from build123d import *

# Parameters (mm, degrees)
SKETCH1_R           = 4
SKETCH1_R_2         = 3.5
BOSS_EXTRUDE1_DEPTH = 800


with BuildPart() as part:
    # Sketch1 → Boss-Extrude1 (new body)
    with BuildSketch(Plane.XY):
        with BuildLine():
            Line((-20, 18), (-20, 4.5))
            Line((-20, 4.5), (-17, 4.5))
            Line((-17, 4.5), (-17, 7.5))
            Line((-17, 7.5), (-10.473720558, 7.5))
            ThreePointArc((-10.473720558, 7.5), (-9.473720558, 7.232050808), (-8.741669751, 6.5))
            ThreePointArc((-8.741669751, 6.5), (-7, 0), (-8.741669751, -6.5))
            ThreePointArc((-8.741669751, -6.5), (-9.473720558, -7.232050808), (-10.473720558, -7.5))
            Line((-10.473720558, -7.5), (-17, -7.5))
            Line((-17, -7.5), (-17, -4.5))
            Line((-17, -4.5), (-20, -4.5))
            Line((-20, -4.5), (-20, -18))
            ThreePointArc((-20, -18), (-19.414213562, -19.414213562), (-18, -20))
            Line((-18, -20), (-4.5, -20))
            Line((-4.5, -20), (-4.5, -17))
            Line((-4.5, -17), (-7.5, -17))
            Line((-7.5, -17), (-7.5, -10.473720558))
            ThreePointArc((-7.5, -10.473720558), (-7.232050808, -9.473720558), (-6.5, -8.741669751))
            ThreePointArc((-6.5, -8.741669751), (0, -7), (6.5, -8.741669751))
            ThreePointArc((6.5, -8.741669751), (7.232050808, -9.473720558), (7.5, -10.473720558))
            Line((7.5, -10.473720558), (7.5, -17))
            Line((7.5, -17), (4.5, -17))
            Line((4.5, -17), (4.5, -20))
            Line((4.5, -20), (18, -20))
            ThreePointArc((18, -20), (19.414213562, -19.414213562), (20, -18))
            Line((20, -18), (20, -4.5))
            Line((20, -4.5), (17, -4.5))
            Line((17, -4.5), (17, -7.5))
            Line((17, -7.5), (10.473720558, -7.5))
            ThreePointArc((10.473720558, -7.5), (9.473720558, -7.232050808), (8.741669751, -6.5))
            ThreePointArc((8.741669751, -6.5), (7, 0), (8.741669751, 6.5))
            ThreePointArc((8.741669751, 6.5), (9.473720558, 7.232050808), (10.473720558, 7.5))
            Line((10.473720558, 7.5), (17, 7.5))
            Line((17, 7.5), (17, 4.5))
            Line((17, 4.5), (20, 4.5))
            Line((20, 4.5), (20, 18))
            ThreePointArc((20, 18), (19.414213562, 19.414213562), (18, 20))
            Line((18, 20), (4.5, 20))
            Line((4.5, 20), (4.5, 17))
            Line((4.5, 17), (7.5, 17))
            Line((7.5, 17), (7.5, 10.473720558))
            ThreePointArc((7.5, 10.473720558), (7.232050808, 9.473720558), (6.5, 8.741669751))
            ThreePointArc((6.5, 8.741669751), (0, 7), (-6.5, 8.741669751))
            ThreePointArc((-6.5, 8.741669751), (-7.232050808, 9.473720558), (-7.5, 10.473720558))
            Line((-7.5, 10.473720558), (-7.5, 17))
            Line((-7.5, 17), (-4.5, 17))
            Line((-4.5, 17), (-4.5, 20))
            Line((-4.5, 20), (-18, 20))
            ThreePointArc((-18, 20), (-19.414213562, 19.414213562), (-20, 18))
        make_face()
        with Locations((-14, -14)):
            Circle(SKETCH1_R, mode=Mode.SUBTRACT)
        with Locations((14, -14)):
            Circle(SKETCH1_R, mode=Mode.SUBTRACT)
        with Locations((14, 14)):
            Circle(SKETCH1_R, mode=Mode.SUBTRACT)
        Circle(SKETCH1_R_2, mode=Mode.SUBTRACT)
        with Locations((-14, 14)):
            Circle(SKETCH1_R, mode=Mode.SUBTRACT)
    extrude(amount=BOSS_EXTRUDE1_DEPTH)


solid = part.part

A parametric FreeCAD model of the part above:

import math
import FreeCAD as App
import Part
import Sketcher
from FreeCAD import Vector

doc = App.newDocument("Part")
params = doc.addObject("Spreadsheet::Sheet", "Params")
for row, (alias, value) in enumerate([
    ("sketch1_diameter", "8 mm"),
    ("sketch1_diameter2", "7 mm"),
    ("sketch1_radius", "2 mm"),
    ("sketch1_radius2", "13 mm"),
    ("sketch1_width", "3 mm"),
    ("pad1_length", "800 mm"),
], start=1):
    params.set(f"A{row}", alias)
    params.set(f"B{row}", "=" + value)
    params.setAlias(f"B{row}", alias)

body = doc.addObject("PartDesign::Body", "Body")

sketch1 = doc.addObject("Sketcher::SketchObject", "Sketch")
body.addObject(sketch1)
sketch1.AttachmentSupport = (doc.XY_Plane, [""])
sketch1.MapMode = "FlatFace"
sketch1.addGeometry(Part.LineSegment(Vector(-20, 18, 0), Vector(-20, 4.5, 0)), False)
sketch1.addGeometry(Part.LineSegment(Vector(-20, 4.5, 0), Vector(-17, 4.5, 0)), False)
sketch1.addGeometry(Part.LineSegment(Vector(-17, 4.5, 0), Vector(-17, 7.5, 0)), False)
sketch1.addGeometry(Part.LineSegment(Vector(-17, 7.5, 0), Vector(-10.5, 7.5, 0)), False)
sketch1.addGeometry(Part.ArcOfCircle(Part.Circle(Vector(-10.5, 5.5, 0), Vector(0, 0, 1), 2), math.radians(30), math.radians(90)), False)
sketch1.addGeometry(Part.ArcOfCircle(Part.Circle(Vector(-20, 0, 0), Vector(0, 0, 1), 13), math.radians(-30), math.radians(30)), False)
sketch1.addGeometry(Part.ArcOfCircle(Part.Circle(Vector(-10.5, -5.5, 0), Vector(0, 0, 1), 2), math.radians(-90), math.radians(-30)), False)
sketch1.addGeometry(Part.LineSegment(Vector(-10.5, -7.5, 0), Vector(-17, -7.5, 0)), False)
sketch1.addGeometry(Part.LineSegment(Vector(-17, -7.5, 0), Vector(-17, -4.5, 0)), False)
sketch1.addGeometry(Part.LineSegment(Vector(-17, -4.5, 0), Vector(-20, -4.5, 0)), False)
sketch1.addGeometry(Part.LineSegment(Vector(-20, -4.5, 0), Vector(-20, -18, 0)), False)
sketch1.addGeometry(Part.ArcOfCircle(Part.Circle(Vector(-18, -18, 0), Vector(0, 0, 1), 2), math.radians(-180), math.radians(-90)), False)
sketch1.addGeometry(Part.LineSegment(Vector(-18, -20, 0), Vector(-4.5, -20, 0)), False)
sketch1.addGeometry(Part.LineSegment(Vector(-4.5, -20, 0), Vector(-4.5, -17, 0)), False)
sketch1.addGeometry(Part.LineSegment(Vector(-4.5, -17, 0), Vector(-7.5, -17, 0)), False)
sketch1.addGeometry(Part.LineSegment(Vector(-7.5, -17, 0), Vector(-7.5, -10.5, 0)), False)
sketch1.addGeometry(Part.ArcOfCircle(Part.Circle(Vector(-5.5, -10.5, 0), Vector(0, 0, 1), 2), math.radians(120), math.radians(180)), False)
sketch1.addGeometry(Part.ArcOfCircle(Part.Circle(Vector(0, -20, 0), Vector(0, 0, 1), 13), math.radians(60), math.radians(120)), False)
sketch1.addGeometry(Part.ArcOfCircle(Part.Circle(Vector(5.5, -10.5, 0), Vector(0, 0, 1), 2), math.radians(0), math.radians(60)), False)
sketch1.addGeometry(Part.LineSegment(Vector(7.5, -10.5, 0), Vector(7.5, -17, 0)), False)
sketch1.addGeometry(Part.LineSegment(Vector(7.5, -17, 0), Vector(4.5, -17, 0)), False)
sketch1.addGeometry(Part.LineSegment(Vector(4.5, -17, 0), Vector(4.5, -20, 0)), False)
sketch1.addGeometry(Part.LineSegment(Vector(4.5, -20, 0), Vector(18, -20, 0)), False)
sketch1.addGeometry(Part.ArcOfCircle(Part.Circle(Vector(18, -18, 0), Vector(0, 0, 1), 2), math.radians(-90), math.radians(0)), False)
sketch1.addGeometry(Part.LineSegment(Vector(20, -18, 0), Vector(20, -4.5, 0)), False)
sketch1.addGeometry(Part.LineSegment(Vector(20, -4.5, 0), Vector(17, -4.5, 0)), False)
sketch1.addGeometry(Part.LineSegment(Vector(17, -4.5, 0), Vector(17, -7.5, 0)), False)
sketch1.addGeometry(Part.LineSegment(Vector(17, -7.5, 0), Vector(10.5, -7.5, 0)), False)
sketch1.addGeometry(Part.ArcOfCircle(Part.Circle(Vector(10.5, -5.5, 0), Vector(0, 0, 1), 2), math.radians(-150), math.radians(-90)), False)
sketch1.addGeometry(Part.ArcOfCircle(Part.Circle(Vector(20, 0, 0), Vector(0, 0, 1), 13), math.radians(150), math.radians(210)), False)
sketch1.addGeometry(Part.ArcOfCircle(Part.Circle(Vector(10.5, 5.5, 0), Vector(0, 0, 1), 2), math.radians(90), math.radians(150)), False)
sketch1.addGeometry(Part.LineSegment(Vector(10.5, 7.5, 0), Vector(17, 7.5, 0)), False)
sketch1.addGeometry(Part.LineSegment(Vector(17, 7.5, 0), Vector(17, 4.5, 0)), False)
sketch1.addGeometry(Part.LineSegment(Vector(17, 4.5, 0), Vector(20, 4.5, 0)), False)
sketch1.addGeometry(Part.LineSegment(Vector(20, 4.5, 0), Vector(20, 18, 0)), False)
sketch1.addGeometry(Part.ArcOfCircle(Part.Circle(Vector(18, 18, 0), Vector(0, 0, 1), 2), math.radians(0), math.radians(90)), False)
sketch1.addGeometry(Part.LineSegment(Vector(18, 20, 0), Vector(4.5, 20, 0)), False)
sketch1.addGeometry(Part.LineSegment(Vector(4.5, 20, 0), Vector(4.5, 17, 0)), False)
sketch1.addGeometry(Part.LineSegment(Vector(4.5, 17, 0), Vector(7.5, 17, 0)), False)
sketch1.addGeometry(Part.LineSegment(Vector(7.5, 17, 0), Vector(7.5, 10.5, 0)), False)
sketch1.addGeometry(Part.ArcOfCircle(Part.Circle(Vector(5.5, 10.5, 0), Vector(0, 0, 1), 2), math.radians(-60), math.radians(0)), False)
sketch1.addGeometry(Part.ArcOfCircle(Part.Circle(Vector(0, 20, 0), Vector(0, 0, 1), 13), math.radians(-120), math.radians(-60)), False)
sketch1.addGeometry(Part.ArcOfCircle(Part.Circle(Vector(-5.5, 10.5, 0), Vector(0, 0, 1), 2), math.radians(180), math.radians(240)), False)
sketch1.addGeometry(Part.LineSegment(Vector(-7.5, 10.5, 0), Vector(-7.5, 17, 0)), False)
sketch1.addGeometry(Part.LineSegment(Vector(-7.5, 17, 0), Vector(-4.5, 17, 0)), False)
sketch1.addGeometry(Part.LineSegment(Vector(-4.5, 17, 0), Vector(-4.5, 20, 0)), False)
sketch1.addGeometry(Part.LineSegment(Vector(-4.5, 20, 0), Vector(-18, 20, 0)), False)
sketch1.addGeometry(Part.ArcOfCircle(Part.Circle(Vector(-18, 18, 0), Vector(0, 0, 1), 2), math.radians(90), math.radians(180)), False)
sketch1.addGeometry(Part.Circle(Vector(-14, -14, 0), Vector(0, 0, 1), 4), False)
sketch1.addGeometry(Part.Circle(Vector(14, -14, 0), Vector(0, 0, 1), 4), False)
sketch1.addGeometry(Part.Circle(Vector(-14, 14, 0), Vector(0, 0, 1), 4), False)
sketch1.addGeometry(Part.Circle(Vector(0, 0, 0), Vector(0, 0, 1), 3.5), False)
sketch1.addGeometry(Part.Circle(Vector(14, 14, 0), Vector(0, 0, 1), 4), False)
sketch1.addConstraint(Sketcher.Constraint("Coincident", 0, 2, 1, 1))
sketch1.addConstraint(Sketcher.Constraint("Coincident", 1, 2, 2, 1))
sketch1.addConstraint(Sketcher.Constraint("Coincident", 2, 2, 3, 1))
sketch1.addConstraint(Sketcher.Constraint("Tangent", 3, 2, 4, 2))
sketch1.addConstraint(Sketcher.Constraint("Tangent", 4, 1, 5, 2))
sketch1.addConstraint(Sketcher.Constraint("Tangent", 5, 1, 6, 2))
sketch1.addConstraint(Sketcher.Constraint("Tangent", 6, 1, 7, 1))
sketch1.addConstraint(Sketcher.Constraint("Coincident", 7, 2, 8, 1))
sketch1.addConstraint(Sketcher.Constraint("Coincident", 8, 2, 9, 1))
sketch1.addConstraint(Sketcher.Constraint("Coincident", 9, 2, 10, 1))
sketch1.addConstraint(Sketcher.Constraint("Tangent", 10, 2, 11, 1))
sketch1.addConstraint(Sketcher.Constraint("Tangent", 11, 2, 12, 1))
sketch1.addConstraint(Sketcher.Constraint("Coincident", 12, 2, 13, 1))
sketch1.addConstraint(Sketcher.Constraint("Coincident", 13, 2, 14, 1))
sketch1.addConstraint(Sketcher.Constraint("Coincident", 14, 2, 15, 1))
sketch1.addConstraint(Sketcher.Constraint("Tangent", 15, 2, 16, 2))
sketch1.addConstraint(Sketcher.Constraint("Tangent", 16, 1, 17, 2))
sketch1.addConstraint(Sketcher.Constraint("Tangent", 17, 1, 18, 2))
sketch1.addConstraint(Sketcher.Constraint("Tangent", 18, 1, 19, 1))
sketch1.addConstraint(Sketcher.Constraint("Coincident", 19, 2, 20, 1))
sketch1.addConstraint(Sketcher.Constraint("Coincident", 20, 2, 21, 1))
sketch1.addConstraint(Sketcher.Constraint("Coincident", 21, 2, 22, 1))
sketch1.addConstraint(Sketcher.Constraint("Tangent", 22, 2, 23, 1))
sketch1.addConstraint(Sketcher.Constraint("Tangent", 23, 2, 24, 1))
sketch1.addConstraint(Sketcher.Constraint("Coincident", 24, 2, 25, 1))
sketch1.addConstraint(Sketcher.Constraint("Coincident", 25, 2, 26, 1))
sketch1.addConstraint(Sketcher.Constraint("Coincident", 26, 2, 27, 1))
sketch1.addConstraint(Sketcher.Constraint("Tangent", 27, 2, 28, 2))
sketch1.addConstraint(Sketcher.Constraint("Tangent", 28, 1, 29, 2))
sketch1.addConstraint(Sketcher.Constraint("Tangent", 29, 1, 30, 2))
sketch1.addConstraint(Sketcher.Constraint("Tangent", 30, 1, 31, 1))
sketch1.addConstraint(Sketcher.Constraint("Coincident", 31, 2, 32, 1))
sketch1.addConstraint(Sketcher.Constraint("Coincident", 32, 2, 33, 1))
sketch1.addConstraint(Sketcher.Constraint("Coincident", 33, 2, 34, 1))
sketch1.addConstraint(Sketcher.Constraint("Tangent", 34, 2, 35, 1))
sketch1.addConstraint(Sketcher.Constraint("Tangent", 35, 2, 36, 1))
sketch1.addConstraint(Sketcher.Constraint("Coincident", 36, 2, 37, 1))
sketch1.addConstraint(Sketcher.Constraint("Coincident", 37, 2, 38, 1))
sketch1.addConstraint(Sketcher.Constraint("Coincident", 38, 2, 39, 1))
sketch1.addConstraint(Sketcher.Constraint("Tangent", 39, 2, 40, 2))
sketch1.addConstraint(Sketcher.Constraint("Tangent", 40, 1, 41, 2))
sketch1.addConstraint(Sketcher.Constraint("Tangent", 41, 1, 42, 2))
sketch1.addConstraint(Sketcher.Constraint("Tangent", 42, 1, 43, 1))
sketch1.addConstraint(Sketcher.Constraint("Coincident", 43, 2, 44, 1))
sketch1.addConstraint(Sketcher.Constraint("Coincident", 44, 2, 45, 1))
sketch1.addConstraint(Sketcher.Constraint("Coincident", 45, 2, 46, 1))
sketch1.addConstraint(Sketcher.Constraint("Tangent", 46, 2, 47, 1))
sketch1.addConstraint(Sketcher.Constraint("Tangent", 47, 2, 0, 1))
sketch1.addConstraint(Sketcher.Constraint("Vertical", 0))
sketch1.addConstraint(Sketcher.Constraint("Horizontal", 1))
sketch1.addConstraint(Sketcher.Constraint("Vertical", 2))
sketch1.addConstraint(Sketcher.Constraint("Horizontal", 3))
sketch1.addConstraint(Sketcher.Constraint("Horizontal", 7))
sketch1.addConstraint(Sketcher.Constraint("Vertical", 8))
sketch1.addConstraint(Sketcher.Constraint("Horizontal", 9))
sketch1.addConstraint(Sketcher.Constraint("Vertical", 10))
sketch1.addConstraint(Sketcher.Constraint("Horizontal", 12))
sketch1.addConstraint(Sketcher.Constraint("Vertical", 13))
sketch1.addConstraint(Sketcher.Constraint("Horizontal", 14))
sketch1.addConstraint(Sketcher.Constraint("Vertical", 15))
sketch1.addConstraint(Sketcher.Constraint("Vertical", 19))
sketch1.addConstraint(Sketcher.Constraint("Horizontal", 20))
sketch1.addConstraint(Sketcher.Constraint("Vertical", 21))
sketch1.addConstraint(Sketcher.Constraint("Horizontal", 22))
sketch1.addConstraint(Sketcher.Constraint("Vertical", 24))
sketch1.addConstraint(Sketcher.Constraint("Horizontal", 25))
sketch1.addConstraint(Sketcher.Constraint("Vertical", 26))
sketch1.addConstraint(Sketcher.Constraint("Horizontal", 27))
sketch1.addConstraint(Sketcher.Constraint("Horizontal", 31))
sketch1.addConstraint(Sketcher.Constraint("Vertical", 32))
sketch1.addConstraint(Sketcher.Constraint("Horizontal", 33))
sketch1.addConstraint(Sketcher.Constraint("Vertical", 34))
sketch1.addConstraint(Sketcher.Constraint("Horizontal", 36))
sketch1.addConstraint(Sketcher.Constraint("Vertical", 37))
sketch1.addConstraint(Sketcher.Constraint("Horizontal", 38))
sketch1.addConstraint(Sketcher.Constraint("Vertical", 39))
sketch1.addConstraint(Sketcher.Constraint("Vertical", 43))
sketch1.addConstraint(Sketcher.Constraint("Horizontal", 44))
sketch1.addConstraint(Sketcher.Constraint("Vertical", 45))
sketch1.addConstraint(Sketcher.Constraint("Horizontal", 46))
sketch1.addConstraint(Sketcher.Constraint("Coincident", 51, 3, -1, 1))
sketch1.addConstraint(Sketcher.Constraint("Equal", 4, 6))
sketch1.addConstraint(Sketcher.Constraint("Equal", 6, 11))
sketch1.addConstraint(Sketcher.Constraint("Equal", 11, 16))
sketch1.addConstraint(Sketcher.Constraint("Equal", 5, 17))
sketch1.addConstraint(Sketcher.Constraint("Equal", 16, 18))
sketch1.addConstraint(Sketcher.Constraint("Equal", 18, 23))
sketch1.addConstraint(Sketcher.Constraint("Equal", 23, 28))
sketch1.addConstraint(Sketcher.Constraint("Equal", 17, 29))
sketch1.addConstraint(Sketcher.Constraint("Equal", 28, 30))
sketch1.addConstraint(Sketcher.Constraint("Equal", 30, 35))
sketch1.addConstraint(Sketcher.Constraint("Equal", 35, 40))
sketch1.addConstraint(Sketcher.Constraint("Equal", 29, 41))
sketch1.addConstraint(Sketcher.Constraint("Equal", 40, 42))
sketch1.addConstraint(Sketcher.Constraint("Equal", 42, 47))
sketch1.addConstraint(Sketcher.Constraint("Equal", 48, 49))
sketch1.addConstraint(Sketcher.Constraint("Equal", 49, 50))
sketch1.addConstraint(Sketcher.Constraint("Equal", 50, 52))
sketch1.addConstraint(Sketcher.Constraint("Symmetric", 4, 3, 28, 3, -1, 1))
sketch1.addConstraint(Sketcher.Constraint("Symmetric", 6, 3, 30, 3, -1, 1))
sketch1.addConstraint(Sketcher.Constraint("Symmetric", 11, 3, 35, 3, -1, 1))
sketch1.addConstraint(Sketcher.Constraint("Symmetric", 16, 3, 40, 3, -1, 1))
sketch1.addConstraint(Sketcher.Constraint("Symmetric", 18, 3, 42, 3, -1, 1))
sketch1.addConstraint(Sketcher.Constraint("Symmetric", 23, 3, 47, 3, -1, 1))
sketch1.addConstraint(Sketcher.Constraint("Symmetric", 49, 3, 50, 3, -1, 1))
sketch1.addConstraint(Sketcher.Constraint("Symmetric", 48, 3, 52, 3, -1, 1))
sketch1.addConstraint(Sketcher.Constraint("Symmetric", 1, 2, 25, 2, -1, 1))
sketch1.addConstraint(Sketcher.Constraint("Symmetric", 8, 2, 32, 2, -1, 1))
sketch1.addConstraint(Sketcher.Constraint("Symmetric", 13, 2, 37, 2, -1, 1))
sketch1.addConstraint(Sketcher.Constraint("Symmetric", 20, 2, 44, 2, -1, 1))
sketch1.addConstraint(Sketcher.Constraint("Symmetric", 16, 3, 18, 3, -2))
sketch1.addConstraint(Sketcher.Constraint("Symmetric", 11, 3, 23, 3, -2))
sketch1.addConstraint(Sketcher.Constraint("Symmetric", 6, 3, 28, 3, -2))
sketch1.addConstraint(Sketcher.Constraint("Symmetric", 48, 3, 49, 3, -2))
sketch1.addConstraint(Sketcher.Constraint("Symmetric", 13, 2, 20, 2, -2))
sketch1.addConstraint(Sketcher.Constraint("Symmetric", 8, 2, 25, 2, -2))
sketch1.addConstraint(Sketcher.Constraint("Horizontal", 17, 3, 11, 2))
sketch1.addConstraint(Sketcher.Constraint("Vertical", 5, 3, 0, 2))
sketch1.addConstraint(Sketcher.Constraint("Equal", 9, 14))
sketch1.addConstraint(Sketcher.Constraint("Equal", 46, 0))
sketch1.addConstraint(Sketcher.Constraint("Equal", 44, 2))
sketch1.addConstraint(Sketcher.Constraint("Equal", 8, 13))
sketch1.addConstraint(Sketcher.Constraint("Equal", 31, 15))
sketch1.addConstraint(Sketcher.Constraint("Diameter", 48, 8.0))
sketch1.addConstraint(Sketcher.Constraint("Diameter", 51, 7.0))
sketch1.addConstraint(Sketcher.Constraint("Radius", 4, 2.0))
sketch1.addConstraint(Sketcher.Constraint("Radius", 5, 13.0))
sketch1.addConstraint(Sketcher.Constraint("DistanceX", 1, 1, 1, 2, 3.0))
sketch1.addConstraint(Sketcher.Constraint("DistanceX", 12, 1, 12, 2, 13.5))
sketch1.addConstraint(Sketcher.Constraint("DistanceX", 5, 3, -1, 1, 20.0))
sketch1.addConstraint(Sketcher.Constraint("DistanceX", 48, 3, -1, 1, 14.0))
sketch1.addConstraint(Sketcher.Constraint("DistanceY", 48, 3, -1, 1, 14.0))
sketch1.setExpression("Constraints[123]", "Params.sketch1_diameter")
sketch1.setExpression("Constraints[124]", "Params.sketch1_diameter2")
sketch1.setExpression("Constraints[125]", "Params.sketch1_radius")
sketch1.setExpression("Constraints[126]", "Params.sketch1_radius2")
sketch1.setExpression("Constraints[127]", "Params.sketch1_width")
pad1 = doc.addObject("PartDesign::Pad", "Pad")
body.addObject(pad1)
pad1.Profile = sketch1
pad1.setExpression("Length", "Params.pad1_length")

doc.recompute()
